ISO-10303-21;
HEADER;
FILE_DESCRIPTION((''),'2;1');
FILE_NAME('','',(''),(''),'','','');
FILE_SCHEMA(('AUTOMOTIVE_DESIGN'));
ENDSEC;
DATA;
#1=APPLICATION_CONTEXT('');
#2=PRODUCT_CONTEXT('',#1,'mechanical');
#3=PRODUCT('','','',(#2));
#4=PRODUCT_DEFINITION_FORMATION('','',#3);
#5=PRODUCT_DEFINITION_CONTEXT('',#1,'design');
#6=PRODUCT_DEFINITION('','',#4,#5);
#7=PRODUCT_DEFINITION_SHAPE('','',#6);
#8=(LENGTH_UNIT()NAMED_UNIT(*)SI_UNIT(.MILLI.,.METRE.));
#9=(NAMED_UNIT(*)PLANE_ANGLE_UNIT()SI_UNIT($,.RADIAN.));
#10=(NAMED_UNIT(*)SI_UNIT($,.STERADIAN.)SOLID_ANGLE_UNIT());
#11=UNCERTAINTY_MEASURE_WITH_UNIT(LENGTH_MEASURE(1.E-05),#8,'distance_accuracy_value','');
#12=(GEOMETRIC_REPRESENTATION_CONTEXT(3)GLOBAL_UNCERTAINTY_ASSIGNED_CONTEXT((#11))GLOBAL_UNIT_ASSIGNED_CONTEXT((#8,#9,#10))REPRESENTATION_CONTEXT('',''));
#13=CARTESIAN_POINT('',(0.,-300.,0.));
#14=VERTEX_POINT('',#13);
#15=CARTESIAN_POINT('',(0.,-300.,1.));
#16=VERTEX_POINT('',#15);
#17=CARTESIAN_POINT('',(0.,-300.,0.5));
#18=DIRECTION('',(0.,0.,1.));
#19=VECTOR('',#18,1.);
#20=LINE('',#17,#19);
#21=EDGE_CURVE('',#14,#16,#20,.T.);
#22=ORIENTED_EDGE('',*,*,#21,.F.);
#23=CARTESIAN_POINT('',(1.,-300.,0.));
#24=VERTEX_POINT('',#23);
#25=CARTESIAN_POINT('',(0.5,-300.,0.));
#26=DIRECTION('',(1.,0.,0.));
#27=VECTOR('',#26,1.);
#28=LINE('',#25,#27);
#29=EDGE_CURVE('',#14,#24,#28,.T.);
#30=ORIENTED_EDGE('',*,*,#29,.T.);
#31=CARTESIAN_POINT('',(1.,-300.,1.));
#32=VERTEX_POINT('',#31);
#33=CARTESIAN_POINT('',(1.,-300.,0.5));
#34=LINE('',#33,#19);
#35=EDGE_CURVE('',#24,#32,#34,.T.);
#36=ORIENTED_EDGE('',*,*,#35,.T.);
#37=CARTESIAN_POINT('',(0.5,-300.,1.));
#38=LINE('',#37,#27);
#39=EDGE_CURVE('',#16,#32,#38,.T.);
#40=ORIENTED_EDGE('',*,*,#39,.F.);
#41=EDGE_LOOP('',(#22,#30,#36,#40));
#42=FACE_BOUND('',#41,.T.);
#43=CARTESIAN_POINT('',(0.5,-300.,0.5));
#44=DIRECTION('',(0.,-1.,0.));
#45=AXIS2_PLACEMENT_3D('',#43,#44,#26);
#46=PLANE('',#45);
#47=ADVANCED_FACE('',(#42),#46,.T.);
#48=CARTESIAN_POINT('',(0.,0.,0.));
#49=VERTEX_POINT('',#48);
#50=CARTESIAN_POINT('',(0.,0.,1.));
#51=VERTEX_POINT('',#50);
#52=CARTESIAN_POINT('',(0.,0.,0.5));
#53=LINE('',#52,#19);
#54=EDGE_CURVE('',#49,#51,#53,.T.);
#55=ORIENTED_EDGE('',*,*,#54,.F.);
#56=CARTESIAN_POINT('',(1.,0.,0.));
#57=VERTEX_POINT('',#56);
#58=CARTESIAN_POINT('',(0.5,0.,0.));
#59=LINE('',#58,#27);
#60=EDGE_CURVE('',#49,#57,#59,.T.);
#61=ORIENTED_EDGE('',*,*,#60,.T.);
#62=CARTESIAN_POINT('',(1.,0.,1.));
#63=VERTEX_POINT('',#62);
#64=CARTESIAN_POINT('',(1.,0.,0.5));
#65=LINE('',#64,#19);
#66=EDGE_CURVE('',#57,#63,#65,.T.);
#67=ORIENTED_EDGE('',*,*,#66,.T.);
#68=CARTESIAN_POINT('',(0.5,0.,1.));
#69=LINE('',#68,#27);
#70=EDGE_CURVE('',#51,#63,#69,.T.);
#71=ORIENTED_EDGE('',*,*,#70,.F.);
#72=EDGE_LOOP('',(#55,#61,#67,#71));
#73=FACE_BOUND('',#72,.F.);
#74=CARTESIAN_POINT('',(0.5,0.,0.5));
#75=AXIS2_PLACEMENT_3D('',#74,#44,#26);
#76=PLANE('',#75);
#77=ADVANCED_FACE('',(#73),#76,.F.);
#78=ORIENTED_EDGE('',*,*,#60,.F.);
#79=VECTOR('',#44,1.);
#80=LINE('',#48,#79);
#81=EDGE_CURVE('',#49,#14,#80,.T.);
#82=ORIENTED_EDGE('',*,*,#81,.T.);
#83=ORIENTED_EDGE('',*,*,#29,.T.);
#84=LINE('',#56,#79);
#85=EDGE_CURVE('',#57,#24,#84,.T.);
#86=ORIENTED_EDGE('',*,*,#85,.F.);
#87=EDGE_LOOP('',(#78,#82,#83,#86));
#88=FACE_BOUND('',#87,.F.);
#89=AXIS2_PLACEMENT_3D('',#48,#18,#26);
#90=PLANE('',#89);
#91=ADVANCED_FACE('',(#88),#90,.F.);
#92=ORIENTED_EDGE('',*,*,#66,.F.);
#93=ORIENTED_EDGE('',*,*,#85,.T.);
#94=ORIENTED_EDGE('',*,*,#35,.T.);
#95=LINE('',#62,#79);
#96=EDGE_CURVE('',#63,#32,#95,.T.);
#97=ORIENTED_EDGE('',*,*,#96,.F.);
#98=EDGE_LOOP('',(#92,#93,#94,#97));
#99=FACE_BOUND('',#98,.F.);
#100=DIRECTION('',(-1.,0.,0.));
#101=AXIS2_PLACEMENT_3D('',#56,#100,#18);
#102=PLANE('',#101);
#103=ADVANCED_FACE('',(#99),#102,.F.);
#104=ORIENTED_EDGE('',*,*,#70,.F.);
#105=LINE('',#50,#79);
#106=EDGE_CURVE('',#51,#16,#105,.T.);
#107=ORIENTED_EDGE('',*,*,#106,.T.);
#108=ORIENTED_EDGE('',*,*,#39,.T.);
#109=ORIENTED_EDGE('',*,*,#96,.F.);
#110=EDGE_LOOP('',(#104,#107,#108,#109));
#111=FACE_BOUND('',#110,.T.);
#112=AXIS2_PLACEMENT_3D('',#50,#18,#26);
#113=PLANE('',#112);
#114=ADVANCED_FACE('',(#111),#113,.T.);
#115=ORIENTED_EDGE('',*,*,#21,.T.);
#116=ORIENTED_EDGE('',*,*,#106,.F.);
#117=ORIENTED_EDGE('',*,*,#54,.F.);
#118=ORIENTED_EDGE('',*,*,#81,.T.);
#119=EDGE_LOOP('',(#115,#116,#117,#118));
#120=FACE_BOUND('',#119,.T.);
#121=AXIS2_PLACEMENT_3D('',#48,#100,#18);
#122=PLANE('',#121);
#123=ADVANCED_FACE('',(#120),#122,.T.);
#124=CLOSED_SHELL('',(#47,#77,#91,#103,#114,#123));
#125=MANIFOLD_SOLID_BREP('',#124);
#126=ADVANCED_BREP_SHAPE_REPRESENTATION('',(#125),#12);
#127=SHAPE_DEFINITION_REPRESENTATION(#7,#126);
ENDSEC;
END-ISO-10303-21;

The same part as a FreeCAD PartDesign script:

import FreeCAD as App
import Part
import Sketcher
Q = App.Units.Quantity


def add_polygon(sketch, points):
    """Adds a closed chain of lines whose ends are joined by coincident constraints."""
    first, n = sketch.GeometryCount, len(points)
    for a, b in zip(points, points[1:] + points[:1]):
        sketch.addGeometry(Part.LineSegment(App.Vector(*a, 0), App.Vector(*b, 0)), False)
    for i in range(n):
        sketch.addConstraint(Sketcher.Constraint("Coincident", first + i, 2, first + (i + 1) % n, 1))

doc = App.newDocument("Part")
body = doc.addObject("PartDesign::Body", "Body")

# Sketch on XZ plane
sketch1 = body.newObject("Sketcher::SketchObject", "Sketch")
sketch1.AttachmentSupport = (doc.getObject("XZ_Plane"), [""])
sketch1.MapMode = "FlatFace"
add_polygon(sketch1, [(0, 1), (0, 0), (1, 0), (1, 1)])  # lines 0-3
sketch1.addConstraint(Sketcher.Constraint("Vertical", 0))
sketch1.addConstraint(Sketcher.Constraint("Horizontal", 1))
sketch1.addConstraint(Sketcher.Constraint("Vertical", 2))
sketch1.addConstraint(Sketcher.Constraint("Horizontal", 3))
sketch1.addConstraint(Sketcher.Constraint("Coincident", 0, 2, -1, 1))
sketch1.addConstraint(Sketcher.Constraint("Equal", 3, 0))
sketch1.addConstraint(Sketcher.Constraint("DistanceX", 1, 1, 1, 2, Q("1 mm")))
pad1 = body.newObject("PartDesign::Pad", "Pad")
pad1.Profile = sketch1
pad1.Length = 300

doc.recompute()
